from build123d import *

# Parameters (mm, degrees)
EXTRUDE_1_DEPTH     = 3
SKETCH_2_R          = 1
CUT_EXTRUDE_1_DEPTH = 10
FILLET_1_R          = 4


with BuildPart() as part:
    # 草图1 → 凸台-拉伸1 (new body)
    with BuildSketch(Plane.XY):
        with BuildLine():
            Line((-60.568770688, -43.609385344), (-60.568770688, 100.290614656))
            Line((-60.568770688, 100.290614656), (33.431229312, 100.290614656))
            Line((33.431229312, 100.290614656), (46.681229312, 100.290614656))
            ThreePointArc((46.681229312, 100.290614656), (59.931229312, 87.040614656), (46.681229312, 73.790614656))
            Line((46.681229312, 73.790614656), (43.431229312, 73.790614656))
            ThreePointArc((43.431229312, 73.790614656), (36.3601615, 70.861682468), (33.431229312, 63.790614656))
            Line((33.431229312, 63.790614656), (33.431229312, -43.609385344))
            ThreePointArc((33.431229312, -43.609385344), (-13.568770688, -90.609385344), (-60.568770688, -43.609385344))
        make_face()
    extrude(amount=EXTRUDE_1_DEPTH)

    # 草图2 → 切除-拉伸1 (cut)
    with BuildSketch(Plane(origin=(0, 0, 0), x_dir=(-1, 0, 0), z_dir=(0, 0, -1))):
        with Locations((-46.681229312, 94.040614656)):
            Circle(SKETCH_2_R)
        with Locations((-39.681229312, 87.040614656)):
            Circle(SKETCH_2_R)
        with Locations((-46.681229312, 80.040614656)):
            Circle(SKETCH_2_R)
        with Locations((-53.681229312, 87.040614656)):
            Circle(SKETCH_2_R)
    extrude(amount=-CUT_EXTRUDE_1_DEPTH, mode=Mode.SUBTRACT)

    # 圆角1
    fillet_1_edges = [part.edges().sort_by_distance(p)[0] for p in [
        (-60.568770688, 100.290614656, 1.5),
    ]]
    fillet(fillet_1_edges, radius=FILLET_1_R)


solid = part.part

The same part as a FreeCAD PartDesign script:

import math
import FreeCAD as App
import Part
import Sketcher
Q = App.Units.Quantity


def edges_at(feature, points):
    """Names of the edges that pass closest to the given points."""
    edges = feature.Shape.Edges
    near = lambda p: min(range(len(edges)), key=lambda i: edges[i].distToShape(Part.Vertex(*p))[0])
    return sorted({f"Edge{near(p) + 1}" for p in points})

doc = App.newDocument("Part")
body = doc.addObject("PartDesign::Body", "Body")

# Sketch on XY plane
sketch1 = doc.addObject("Sketcher::SketchObject", "Sketch")
body.addObject(sketch1)
sketch1.AttachmentSupport = (doc.XY_Plane, [""])
sketch1.MapMode = "FlatFace"
sketch1.addGeometry([
    Part.LineSegment(App.Vector(-60.6, 100.3, 0), App.Vector(-60.6, -43.6, 0)),  # 0
    Part.ArcOfCircle(Part.Circle(App.Vector(-13.6, -43.6, 0), App.Vector(0, 0, 1), 47), math.radians(180), math.radians(360)),  # 1
    Part.LineSegment(App.Vector(33.4, -43.6, 0), App.Vector(33.4, 63.8, 0)),  # 2
    Part.ArcOfCircle(Part.Circle(App.Vector(43.4, 63.8, 0), App.Vector(0, 0, 1), 10), math.radians(90), math.radians(180)),  # 3
    Part.LineSegment(App.Vector(43.4, 73.8, 0), App.Vector(46.7, 73.8, 0)),  # 4
    Part.ArcOfCircle(Part.Circle(App.Vector(46.7, 87, 0), App.Vector(0, 0, 1), 13.2), math.radians(-90), math.radians(90)),  # 5
    Part.LineSegment(App.Vector(46.7, 100.3, 0), App.Vector(-60.6, 100.3, 0)),  # 6
], False)
sketch1.addConstraint([
    Sketcher.Constraint("Tangent", 0, 2, 1, 1),
    Sketcher.Constraint("Tangent", 1, 2, 2, 1),
    Sketcher.Constraint("Tangent", 2, 2, 3, 2),
    Sketcher.Constraint("Tangent", 3, 1, 4, 1),
    Sketcher.Constraint("Tangent", 4, 2, 5, 1),
    Sketcher.Constraint("Tangent", 5, 2, 6, 1),
    Sketcher.Constraint("Coincident", 6, 2, 0, 1),
    Sketcher.Constraint("Vertical", 0),
    Sketcher.Constraint("Vertical", 2),
    Sketcher.Constraint("Horizontal", 4),
    Sketcher.Constraint("Horizontal", 6),
    Sketcher.Constraint("Radius", 1, Q("47 mm")),
    Sketcher.Constraint("Radius", 3, Q("10 mm")),
    Sketcher.Constraint("Radius", 5, Q("13.25 mm")),
    Sketcher.Constraint("DistanceY", 0, 2, 0, 1, Q("143.9 mm")),
    Sketcher.Constraint("DistanceX", 4, 1, 4, 2, Q("3.25 mm")),
    Sketcher.Constraint("DistanceX", 1, 3, -1, 1, Q("13.568771 mm")),
    Sketcher.Constraint("DistanceY", 1, 3, -1, 1, Q("43.609385 mm")),
])
pad1 = doc.addObject("PartDesign::Pad", "Pad")
body.addObject(pad1)
pad1.Profile = sketch1
pad1.Length = 3

# Sketch on XY plane
sketch2 = doc.addObject("Sketcher::SketchObject", "Sketch001")
body.addObject(sketch2)
sketch2.AttachmentSupport = (doc.XY_Plane, [""])
sketch2.MapMode = "FlatFace"
sketch2.addGeometry([
    Part.Circle(App.Vector(46.7, 94, 0), App.Vector(0, 0, 1), 1),
    Part.Circle(App.Vector(39.7, 87, 0), App.Vector(0, 0, 1), 1),
    Part.Circle(App.Vector(46.7, 80, 0), App.Vector(0, 0, 1), 1),
    Part.Circle(App.Vector(53.7, 87, 0), App.Vector(0, 0, 1), 1),
], False)
sketch2.addConstraint([
    Sketcher.Constraint("Equal", 0, 1),
    Sketcher.Constraint("Equal", 1, 2),
    Sketcher.Constraint("Equal", 2, 3),
    Sketcher.Constraint("Horizontal", 1, 3, 3, 3),
    Sketcher.Constraint("Vertical", 0, 3, 2, 3),
    Sketcher.Constraint("Diameter", 0, Q("2 mm")),
    Sketcher.Constraint("DistanceX", 1, 3, 0, 3, Q("7 mm")),
    Sketcher.Constraint("DistanceY", 1, 3, 0, 3, Q("7 mm")),
    Sketcher.Constraint("DistanceY", 2, 3, 1, 3, Q("7 mm")),
    Sketcher.Constraint("DistanceX", 0, 3, 3, 3, Q("7 mm")),
    Sketcher.Constraint("DistanceX", -1, 1, 0, 3, Q("46.681229 mm")),
    Sketcher.Constraint("DistanceY", -1, 1, 0, 3, Q("94.040615 mm")),
])
pocket1 = doc.addObject("PartDesign::Pocket", "Pocket")
body.addObject(pocket1)
pocket1.Profile = sketch2
pocket1.Length = 10
pocket1.Reversed = True
doc.recompute()

fillet = doc.addObject("PartDesign::Fillet", "Fillet")
body.addObject(fillet)
fillet.Base = (pocket1, edges_at(pocket1, [(-60.569, 100.291, 1.5)]))
fillet.Radius = 4

doc.recompute()
